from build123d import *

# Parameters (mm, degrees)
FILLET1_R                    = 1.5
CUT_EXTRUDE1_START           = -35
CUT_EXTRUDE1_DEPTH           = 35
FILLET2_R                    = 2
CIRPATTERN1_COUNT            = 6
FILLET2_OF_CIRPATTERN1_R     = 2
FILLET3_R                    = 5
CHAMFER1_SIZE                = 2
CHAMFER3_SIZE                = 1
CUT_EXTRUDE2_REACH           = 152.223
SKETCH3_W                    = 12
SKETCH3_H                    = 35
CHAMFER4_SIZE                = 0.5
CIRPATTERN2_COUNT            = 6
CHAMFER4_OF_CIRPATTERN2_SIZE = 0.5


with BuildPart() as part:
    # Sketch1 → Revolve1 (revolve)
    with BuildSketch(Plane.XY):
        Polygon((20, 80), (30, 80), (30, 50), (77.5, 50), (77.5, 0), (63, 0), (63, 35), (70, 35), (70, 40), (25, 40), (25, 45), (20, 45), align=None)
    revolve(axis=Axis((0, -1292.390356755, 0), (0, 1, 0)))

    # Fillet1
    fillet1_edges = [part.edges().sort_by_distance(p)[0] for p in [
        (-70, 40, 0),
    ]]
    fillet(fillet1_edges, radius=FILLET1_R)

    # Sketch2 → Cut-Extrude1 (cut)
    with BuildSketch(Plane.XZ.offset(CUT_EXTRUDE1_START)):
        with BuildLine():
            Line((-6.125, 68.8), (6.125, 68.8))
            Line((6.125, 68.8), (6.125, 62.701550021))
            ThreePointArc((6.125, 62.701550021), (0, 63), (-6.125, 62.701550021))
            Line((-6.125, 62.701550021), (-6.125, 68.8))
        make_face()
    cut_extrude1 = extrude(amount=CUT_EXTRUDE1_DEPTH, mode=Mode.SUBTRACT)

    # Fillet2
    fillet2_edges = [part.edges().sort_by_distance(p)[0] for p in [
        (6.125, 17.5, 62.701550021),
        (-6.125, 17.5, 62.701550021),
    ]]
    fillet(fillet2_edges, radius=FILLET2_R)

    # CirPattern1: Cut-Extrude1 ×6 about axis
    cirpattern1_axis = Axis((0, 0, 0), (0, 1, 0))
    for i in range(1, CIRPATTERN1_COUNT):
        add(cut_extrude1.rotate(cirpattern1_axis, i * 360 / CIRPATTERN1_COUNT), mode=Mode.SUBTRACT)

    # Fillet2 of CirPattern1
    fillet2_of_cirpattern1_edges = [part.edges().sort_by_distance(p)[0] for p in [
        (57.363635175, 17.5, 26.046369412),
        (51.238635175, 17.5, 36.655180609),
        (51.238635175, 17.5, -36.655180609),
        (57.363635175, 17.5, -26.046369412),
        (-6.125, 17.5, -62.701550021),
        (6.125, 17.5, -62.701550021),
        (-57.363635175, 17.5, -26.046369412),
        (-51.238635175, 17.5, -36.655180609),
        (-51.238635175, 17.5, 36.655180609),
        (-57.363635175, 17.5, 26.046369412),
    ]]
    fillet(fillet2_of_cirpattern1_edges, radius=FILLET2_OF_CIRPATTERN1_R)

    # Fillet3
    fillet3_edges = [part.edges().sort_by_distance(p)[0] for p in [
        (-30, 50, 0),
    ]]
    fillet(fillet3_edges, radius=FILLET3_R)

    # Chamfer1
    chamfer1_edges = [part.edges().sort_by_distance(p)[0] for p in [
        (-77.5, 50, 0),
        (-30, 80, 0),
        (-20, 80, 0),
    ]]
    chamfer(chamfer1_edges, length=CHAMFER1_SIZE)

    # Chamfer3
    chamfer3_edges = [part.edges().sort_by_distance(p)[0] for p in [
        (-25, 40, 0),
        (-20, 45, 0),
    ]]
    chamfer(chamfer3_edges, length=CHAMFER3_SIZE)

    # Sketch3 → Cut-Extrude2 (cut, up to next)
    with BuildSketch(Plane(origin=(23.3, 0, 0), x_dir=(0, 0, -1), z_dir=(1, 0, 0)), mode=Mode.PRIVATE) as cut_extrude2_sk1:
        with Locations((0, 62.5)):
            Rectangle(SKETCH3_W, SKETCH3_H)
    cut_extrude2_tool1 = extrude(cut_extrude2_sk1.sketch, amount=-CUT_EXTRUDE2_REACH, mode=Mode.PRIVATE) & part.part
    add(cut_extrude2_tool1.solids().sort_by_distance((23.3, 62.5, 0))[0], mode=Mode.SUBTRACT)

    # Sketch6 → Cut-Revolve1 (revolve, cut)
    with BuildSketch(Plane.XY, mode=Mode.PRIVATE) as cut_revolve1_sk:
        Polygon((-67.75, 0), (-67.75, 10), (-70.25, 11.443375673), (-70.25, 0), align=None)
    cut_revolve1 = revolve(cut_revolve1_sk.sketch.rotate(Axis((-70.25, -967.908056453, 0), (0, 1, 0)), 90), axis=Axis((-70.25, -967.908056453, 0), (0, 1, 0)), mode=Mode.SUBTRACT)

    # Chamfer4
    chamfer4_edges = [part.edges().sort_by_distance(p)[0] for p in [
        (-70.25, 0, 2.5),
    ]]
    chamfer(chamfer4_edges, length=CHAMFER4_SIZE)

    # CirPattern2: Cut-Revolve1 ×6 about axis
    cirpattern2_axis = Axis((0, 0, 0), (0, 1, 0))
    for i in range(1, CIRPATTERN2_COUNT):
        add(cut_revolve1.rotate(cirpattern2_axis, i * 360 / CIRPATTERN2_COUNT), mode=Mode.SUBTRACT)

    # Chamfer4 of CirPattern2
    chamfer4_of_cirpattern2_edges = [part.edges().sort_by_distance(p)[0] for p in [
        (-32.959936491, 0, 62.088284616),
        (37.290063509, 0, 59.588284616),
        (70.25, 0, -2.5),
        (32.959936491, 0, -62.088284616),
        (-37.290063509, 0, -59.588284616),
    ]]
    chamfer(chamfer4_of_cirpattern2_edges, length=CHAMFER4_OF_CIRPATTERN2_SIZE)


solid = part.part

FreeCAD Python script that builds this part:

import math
import FreeCAD as App
import Part
import Sketcher
Q = App.Units.Quantity


def edges_at(feature, points):
    """Names of the edges that pass closest to the given points."""
    edges = feature.Shape.Edges
    near = lambda p: min(range(len(edges)), key=lambda i: edges[i].distToShape(Part.Vertex(*p))[0])
    return sorted({f"Edge{near(p) + 1}" for p in points})


def add_polygon(sketch, points):
    """Adds a closed chain of lines whose ends are joined by coincident constraints."""
    first, n = sketch.GeometryCount, len(points)
    for a, b in zip(points, points[1:] + points[:1]):
        sketch.addGeometry(Part.LineSegment(App.Vector(*a, 0), App.Vector(*b, 0)), False)
    for i in range(n):
        sketch.addConstraint(Sketcher.Constraint("Coincident", first + i, 2, first + (i + 1) % n, 1))

doc = App.newDocument("Part")
body = doc.addObject("PartDesign::Body", "Body")

# Sketch on XY plane
sketch1 = body.newObject("Sketcher::SketchObject", "Sketch")
sketch1.AttachmentSupport = (doc.getObject("XY_Plane"), [""])
sketch1.MapMode = "FlatFace"
add_polygon(sketch1, [(30, 80), (20, 80), (20, 45), (25, 45), (25, 40), (70, 40), (70, 35), (63, 35), (63, 0), (78, 0), (78, 50), (30, 50)])  # lines 0-11
sketch1.addConstraint(Sketcher.Constraint("Horizontal", 0))
sketch1.addConstraint(Sketcher.Constraint("Vertical", 1))
sketch1.addConstraint(Sketcher.Constraint("Horizontal", 2))
sketch1.addConstraint(Sketcher.Constraint("Vertical", 3))
sketch1.addConstraint(Sketcher.Constraint("Horizontal", 4))
sketch1.addConstraint(Sketcher.Constraint("Vertical", 5))
sketch1.addConstraint(Sketcher.Constraint("Horizontal", 6))
sketch1.addConstraint(Sketcher.Constraint("Vertical", 7))
sketch1.addConstraint(Sketcher.Constraint("Horizontal", 8))
sketch1.addConstraint(Sketcher.Constraint("Vertical", 9))
sketch1.addConstraint(Sketcher.Constraint("Horizontal", 10))
sketch1.addConstraint(Sketcher.Constraint("Vertical", 11))
sketch1.addConstraint(Sketcher.Constraint("PointOnObject", 7, 2, -1))
sketch1.addConstraint(Sketcher.Constraint("Equal", 2, 3))
sketch1.addConstraint(Sketcher.Constraint("Equal", 3, 5))
sketch1.addConstraint(Sketcher.Constraint("Equal", 1, 7))
sketch1.addConstraint(Sketcher.Constraint("DistanceX", 0, 2, 0, 1, 10.0))
sketch1.addConstraint(Sketcher.Constraint("DistanceX", 2, 1, 2, 2, 5.0))
sketch1.addConstraint(Sketcher.Constraint("DistanceX", 4, 1, 4, 2, 45.0))
sketch1.addConstraint(Sketcher.Constraint("DistanceX", 6, 2, 6, 1, 7.0))
sketch1.addConstraint(Sketcher.Constraint("DistanceY", 1, 2, 1, 1, 35.0))
sketch1.addConstraint(Sketcher.Constraint("DistanceY", 9, 1, 9, 2, 50.0))
sketch1.addConstraint(Sketcher.Constraint("DistanceX", 8, 1, 8, 2, 14.5))
sketch1.addConstraint(Sketcher.Constraint("DistanceX", -1, 1, 0, 2, 20.0))
revolution = body.newObject("PartDesign::Revolution", "Revolution")
revolution.Profile = sketch1
revolution.ReferenceAxis = (sketch1, ["V_Axis"])
revolution.Angle = 360
doc.recompute()

fillet = body.newObject("PartDesign::Fillet", "Fillet")
fillet.Base = (revolution, edges_at(revolution, [(-70, 40, 0)]))
fillet.Radius = 1.5

# Sketch on XZ plane
sketch2 = body.newObject("Sketcher::SketchObject", "Sketch001")
sketch2.AttachmentSupport = (doc.getObject("XZ_Plane"), [""])
sketch2.MapMode = "FlatFace"
sketch2.AttachmentOffset = App.Placement(App.Vector(0, 0, -35), App.Rotation())
sketch2.addGeometry(Part.LineSegment(App.Vector(6, 69, 0), App.Vector(-6, 69, 0)), False)
sketch2.addGeometry(Part.LineSegment(App.Vector(-6, 69, 0), App.Vector(-6, 63, 0)), False)
sketch2.addGeometry(Part.ArcOfCircle(Part.Circle(App.Vector(0, 0, 0), App.Vector(0, 0, 1), 63), math.radians(84.42), math.radians(95.58)), False)
sketch2.addGeometry(Part.LineSegment(App.Vector(6, 63, 0), App.Vector(6, 69, 0)), False)
sketch2.addConstraint(Sketcher.Constraint("Coincident", 0, 2, 1, 1))
sketch2.addConstraint(Sketcher.Constraint("Coincident", 1, 2, 2, 2))
sketch2.addConstraint(Sketcher.Constraint("Coincident", 2, 1, 3, 1))
sketch2.addConstraint(Sketcher.Constraint("Coincident", 3, 2, 0, 1))
sketch2.addConstraint(Sketcher.Constraint("Horizontal", 0))
sketch2.addConstraint(Sketcher.Constraint("Vertical", 1))
sketch2.addConstraint(Sketcher.Constraint("Vertical", 3))
sketch2.addConstraint(Sketcher.Constraint("Coincident", 2, 3, -1, 1))
sketch2.addConstraint(Sketcher.Constraint("Horizontal", 1, 2, 2, 1))
sketch2.addConstraint(Sketcher.Constraint("Radius", 2, 63.0))
sketch2.addConstraint(Sketcher.Constraint("DistanceX", 0, 2, 0, 1, 12.25))
sketch2.addConstraint(Sketcher.Constraint("DistanceY", -1, 1, 0, 2, 68.8))
pocket1 = body.newObject("PartDesign::Pocket", "Pocket")
pocket1.Profile = sketch2
pocket1.Length = 35
pocket1.Reversed = True
doc.recompute()

fillet2 = body.newObject("PartDesign::Fillet", "Fillet001")
fillet2.Base = (pocket1, edges_at(pocket1, [(6.125, 17.5, 62.702), (-6.125, 17.5, 62.702)]))
fillet2.Radius = 2
doc.recompute()

polarpattern = body.newObject("PartDesign::PolarPattern", "PolarPattern")
polarpattern.Originals = [pocket1]
polarpattern.Axis = (doc.getObject("Y_Axis"), [""])
polarpattern.Angle = 360
polarpattern.Occurrences = 6
body.Tip = polarpattern
doc.recompute()

fillet3 = body.newObject("PartDesign::Fillet", "Fillet002")
fillet3.Base = (polarpattern, edges_at(polarpattern, [
    (57.364, 17.5, 26.046),
    (51.239, 17.5, 36.655),
    (51.239, 17.5, -36.655),
    (57.364, 17.5, -26.046),
    (-6.125, 17.5, -62.702),
    (6.125, 17.5, -62.702),
    (-57.364, 17.5, -26.046),
    (-51.239, 17.5, -36.655),
    (-51.239, 17.5, 36.655),
    (-57.364, 17.5, 26.046),
]))
fillet3.Radius = 2
doc.recompute()

fillet4 = body.newObject("PartDesign::Fillet", "Fillet003")
fillet4.Base = (fillet3, edges_at(fillet3, [(-30, 50, 0)]))
fillet4.Radius = 5
doc.recompute()

chamfer = body.newObject("PartDesign::Chamfer", "Chamfer")
chamfer.Base = (fillet4, edges_at(fillet4, [(-77.5, 50, 0), (-30, 80, 0), (-20, 80, 0)]))
chamfer.Size = 2
doc.recompute()

chamfer2 = body.newObject("PartDesign::Chamfer", "Chamfer001")
chamfer2.Base = (chamfer, edges_at(chamfer, [(-25, 40, 0), (-20, 45, 0)]))
chamfer2.Size = 1

# Sketch on YZ plane
sketch3 = body.newObject("Sketcher::SketchObject", "Sketch002")
sketch3.AttachmentSupport = (doc.getObject("YZ_Plane"), [""])
sketch3.MapMode = "FlatFace"
sketch3.AttachmentOffset = App.Placement(App.Vector(0, 0, 23.3), App.Rotation())
add_polygon(sketch3, [(80, 6), (45, 6), (45, -6), (80, -6)])  # lines 0-3
sketch3.addConstraint(Sketcher.Constraint("Horizontal", 0))
sketch3.addConstraint(Sketcher.Constraint("Vertical", 1))
sketch3.addConstraint(Sketcher.Constraint("Horizontal", 2))
sketch3.addConstraint(Sketcher.Constraint("Vertical", 3))
sketch3.addConstraint(Sketcher.Constraint("DistanceX", 0, 2, 0, 1, 35.0))
sketch3.addConstraint(Sketcher.Constraint("DistanceY", 1, 2, 1, 1, 12.0))
sketch3.addConstraint(Sketcher.Constraint("DistanceX", -1, 1, 0, 2, 45.0))
sketch3.addConstraint(Sketcher.Constraint("DistanceY", -1, 1, 0, 2, 6.0))
pocket2 = body.newObject("PartDesign::Pocket", "Pocket001")
pocket2.Profile = sketch3
pocket2.Length = 4.221216

# Sketch on XY plane
sketch4 = body.newObject("Sketcher::SketchObject", "Sketch003")
sketch4.AttachmentSupport = (doc.getObject("XY_Plane"), [""])
sketch4.MapMode = "FlatFace"
add_polygon(sketch4, [(-67.8, 0), (-67.8, 10), (-70.2, 11.4), (-70.2, 0)])  # lines 0-3
sketch4.addGeometry(Part.LineSegment(App.Vector(-70.2, 0, 0), App.Vector(-70.2, 11.4, 0)), True)  # axis
sketch4.addConstraint(Sketcher.Constraint("Vertical", 0))
sketch4.addConstraint(Sketcher.Constraint("Vertical", 2))
sketch4.addConstraint(Sketcher.Constraint("Horizontal", 3))
sketch4.addConstraint(Sketcher.Constraint("Vertical", 4))
sketch4.addConstraint(Sketcher.Constraint("Coincident", 4, 1, 2, 2))
sketch4.addConstraint(Sketcher.Constraint("PointOnObject", 2, 2, -1))
sketch4.addConstraint(Sketcher.Constraint("Equal", 2, 4))
sketch4.addConstraint(Sketcher.Constraint("DistanceY", 0, 1, 0, 2, 10.0))
sketch4.addConstraint(Sketcher.Constraint("Angle", 1, Q("150 deg")))
sketch4.addConstraint(Sketcher.Constraint("DistanceX", 3, 1, 3, 2, 2.5))
sketch4.addConstraint(Sketcher.Constraint("DistanceX", 0, 2, -1, 1, 67.75))
groove = body.newObject("PartDesign::Groove", "Groove")
groove.Profile = sketch4
groove.ReferenceAxis = (sketch4, ["Axis0"])
groove.Angle = 360
doc.recompute()

chamfer3 = body.newObject("PartDesign::Chamfer", "Chamfer002")
chamfer3.Base = (groove, edges_at(groove, [(-70.25, 0, 2.5)]))
chamfer3.Size = 0.5
doc.recompute()

polarpattern2 = body.newObject("PartDesign::PolarPattern", "PolarPattern001")
polarpattern2.Originals = [groove]
polarpattern2.Axis = (doc.getObject("Y_Axis"), [""])
polarpattern2.Angle = 360
polarpattern2.Occurrences = 6
body.Tip = polarpattern2
doc.recompute()

chamfer4 = body.newObject("PartDesign::Chamfer", "Chamfer003")
chamfer4.Base = (polarpattern2, edges_at(polarpattern2, [
    (-32.96, 0, 62.088),
    (37.29, 0, 59.588),
    (70.25, 0, -2.5),
    (32.96, 0, -62.088),
    (-37.29, 0, -59.588),
]))
chamfer4.Size = 0.5

doc.recompute()
